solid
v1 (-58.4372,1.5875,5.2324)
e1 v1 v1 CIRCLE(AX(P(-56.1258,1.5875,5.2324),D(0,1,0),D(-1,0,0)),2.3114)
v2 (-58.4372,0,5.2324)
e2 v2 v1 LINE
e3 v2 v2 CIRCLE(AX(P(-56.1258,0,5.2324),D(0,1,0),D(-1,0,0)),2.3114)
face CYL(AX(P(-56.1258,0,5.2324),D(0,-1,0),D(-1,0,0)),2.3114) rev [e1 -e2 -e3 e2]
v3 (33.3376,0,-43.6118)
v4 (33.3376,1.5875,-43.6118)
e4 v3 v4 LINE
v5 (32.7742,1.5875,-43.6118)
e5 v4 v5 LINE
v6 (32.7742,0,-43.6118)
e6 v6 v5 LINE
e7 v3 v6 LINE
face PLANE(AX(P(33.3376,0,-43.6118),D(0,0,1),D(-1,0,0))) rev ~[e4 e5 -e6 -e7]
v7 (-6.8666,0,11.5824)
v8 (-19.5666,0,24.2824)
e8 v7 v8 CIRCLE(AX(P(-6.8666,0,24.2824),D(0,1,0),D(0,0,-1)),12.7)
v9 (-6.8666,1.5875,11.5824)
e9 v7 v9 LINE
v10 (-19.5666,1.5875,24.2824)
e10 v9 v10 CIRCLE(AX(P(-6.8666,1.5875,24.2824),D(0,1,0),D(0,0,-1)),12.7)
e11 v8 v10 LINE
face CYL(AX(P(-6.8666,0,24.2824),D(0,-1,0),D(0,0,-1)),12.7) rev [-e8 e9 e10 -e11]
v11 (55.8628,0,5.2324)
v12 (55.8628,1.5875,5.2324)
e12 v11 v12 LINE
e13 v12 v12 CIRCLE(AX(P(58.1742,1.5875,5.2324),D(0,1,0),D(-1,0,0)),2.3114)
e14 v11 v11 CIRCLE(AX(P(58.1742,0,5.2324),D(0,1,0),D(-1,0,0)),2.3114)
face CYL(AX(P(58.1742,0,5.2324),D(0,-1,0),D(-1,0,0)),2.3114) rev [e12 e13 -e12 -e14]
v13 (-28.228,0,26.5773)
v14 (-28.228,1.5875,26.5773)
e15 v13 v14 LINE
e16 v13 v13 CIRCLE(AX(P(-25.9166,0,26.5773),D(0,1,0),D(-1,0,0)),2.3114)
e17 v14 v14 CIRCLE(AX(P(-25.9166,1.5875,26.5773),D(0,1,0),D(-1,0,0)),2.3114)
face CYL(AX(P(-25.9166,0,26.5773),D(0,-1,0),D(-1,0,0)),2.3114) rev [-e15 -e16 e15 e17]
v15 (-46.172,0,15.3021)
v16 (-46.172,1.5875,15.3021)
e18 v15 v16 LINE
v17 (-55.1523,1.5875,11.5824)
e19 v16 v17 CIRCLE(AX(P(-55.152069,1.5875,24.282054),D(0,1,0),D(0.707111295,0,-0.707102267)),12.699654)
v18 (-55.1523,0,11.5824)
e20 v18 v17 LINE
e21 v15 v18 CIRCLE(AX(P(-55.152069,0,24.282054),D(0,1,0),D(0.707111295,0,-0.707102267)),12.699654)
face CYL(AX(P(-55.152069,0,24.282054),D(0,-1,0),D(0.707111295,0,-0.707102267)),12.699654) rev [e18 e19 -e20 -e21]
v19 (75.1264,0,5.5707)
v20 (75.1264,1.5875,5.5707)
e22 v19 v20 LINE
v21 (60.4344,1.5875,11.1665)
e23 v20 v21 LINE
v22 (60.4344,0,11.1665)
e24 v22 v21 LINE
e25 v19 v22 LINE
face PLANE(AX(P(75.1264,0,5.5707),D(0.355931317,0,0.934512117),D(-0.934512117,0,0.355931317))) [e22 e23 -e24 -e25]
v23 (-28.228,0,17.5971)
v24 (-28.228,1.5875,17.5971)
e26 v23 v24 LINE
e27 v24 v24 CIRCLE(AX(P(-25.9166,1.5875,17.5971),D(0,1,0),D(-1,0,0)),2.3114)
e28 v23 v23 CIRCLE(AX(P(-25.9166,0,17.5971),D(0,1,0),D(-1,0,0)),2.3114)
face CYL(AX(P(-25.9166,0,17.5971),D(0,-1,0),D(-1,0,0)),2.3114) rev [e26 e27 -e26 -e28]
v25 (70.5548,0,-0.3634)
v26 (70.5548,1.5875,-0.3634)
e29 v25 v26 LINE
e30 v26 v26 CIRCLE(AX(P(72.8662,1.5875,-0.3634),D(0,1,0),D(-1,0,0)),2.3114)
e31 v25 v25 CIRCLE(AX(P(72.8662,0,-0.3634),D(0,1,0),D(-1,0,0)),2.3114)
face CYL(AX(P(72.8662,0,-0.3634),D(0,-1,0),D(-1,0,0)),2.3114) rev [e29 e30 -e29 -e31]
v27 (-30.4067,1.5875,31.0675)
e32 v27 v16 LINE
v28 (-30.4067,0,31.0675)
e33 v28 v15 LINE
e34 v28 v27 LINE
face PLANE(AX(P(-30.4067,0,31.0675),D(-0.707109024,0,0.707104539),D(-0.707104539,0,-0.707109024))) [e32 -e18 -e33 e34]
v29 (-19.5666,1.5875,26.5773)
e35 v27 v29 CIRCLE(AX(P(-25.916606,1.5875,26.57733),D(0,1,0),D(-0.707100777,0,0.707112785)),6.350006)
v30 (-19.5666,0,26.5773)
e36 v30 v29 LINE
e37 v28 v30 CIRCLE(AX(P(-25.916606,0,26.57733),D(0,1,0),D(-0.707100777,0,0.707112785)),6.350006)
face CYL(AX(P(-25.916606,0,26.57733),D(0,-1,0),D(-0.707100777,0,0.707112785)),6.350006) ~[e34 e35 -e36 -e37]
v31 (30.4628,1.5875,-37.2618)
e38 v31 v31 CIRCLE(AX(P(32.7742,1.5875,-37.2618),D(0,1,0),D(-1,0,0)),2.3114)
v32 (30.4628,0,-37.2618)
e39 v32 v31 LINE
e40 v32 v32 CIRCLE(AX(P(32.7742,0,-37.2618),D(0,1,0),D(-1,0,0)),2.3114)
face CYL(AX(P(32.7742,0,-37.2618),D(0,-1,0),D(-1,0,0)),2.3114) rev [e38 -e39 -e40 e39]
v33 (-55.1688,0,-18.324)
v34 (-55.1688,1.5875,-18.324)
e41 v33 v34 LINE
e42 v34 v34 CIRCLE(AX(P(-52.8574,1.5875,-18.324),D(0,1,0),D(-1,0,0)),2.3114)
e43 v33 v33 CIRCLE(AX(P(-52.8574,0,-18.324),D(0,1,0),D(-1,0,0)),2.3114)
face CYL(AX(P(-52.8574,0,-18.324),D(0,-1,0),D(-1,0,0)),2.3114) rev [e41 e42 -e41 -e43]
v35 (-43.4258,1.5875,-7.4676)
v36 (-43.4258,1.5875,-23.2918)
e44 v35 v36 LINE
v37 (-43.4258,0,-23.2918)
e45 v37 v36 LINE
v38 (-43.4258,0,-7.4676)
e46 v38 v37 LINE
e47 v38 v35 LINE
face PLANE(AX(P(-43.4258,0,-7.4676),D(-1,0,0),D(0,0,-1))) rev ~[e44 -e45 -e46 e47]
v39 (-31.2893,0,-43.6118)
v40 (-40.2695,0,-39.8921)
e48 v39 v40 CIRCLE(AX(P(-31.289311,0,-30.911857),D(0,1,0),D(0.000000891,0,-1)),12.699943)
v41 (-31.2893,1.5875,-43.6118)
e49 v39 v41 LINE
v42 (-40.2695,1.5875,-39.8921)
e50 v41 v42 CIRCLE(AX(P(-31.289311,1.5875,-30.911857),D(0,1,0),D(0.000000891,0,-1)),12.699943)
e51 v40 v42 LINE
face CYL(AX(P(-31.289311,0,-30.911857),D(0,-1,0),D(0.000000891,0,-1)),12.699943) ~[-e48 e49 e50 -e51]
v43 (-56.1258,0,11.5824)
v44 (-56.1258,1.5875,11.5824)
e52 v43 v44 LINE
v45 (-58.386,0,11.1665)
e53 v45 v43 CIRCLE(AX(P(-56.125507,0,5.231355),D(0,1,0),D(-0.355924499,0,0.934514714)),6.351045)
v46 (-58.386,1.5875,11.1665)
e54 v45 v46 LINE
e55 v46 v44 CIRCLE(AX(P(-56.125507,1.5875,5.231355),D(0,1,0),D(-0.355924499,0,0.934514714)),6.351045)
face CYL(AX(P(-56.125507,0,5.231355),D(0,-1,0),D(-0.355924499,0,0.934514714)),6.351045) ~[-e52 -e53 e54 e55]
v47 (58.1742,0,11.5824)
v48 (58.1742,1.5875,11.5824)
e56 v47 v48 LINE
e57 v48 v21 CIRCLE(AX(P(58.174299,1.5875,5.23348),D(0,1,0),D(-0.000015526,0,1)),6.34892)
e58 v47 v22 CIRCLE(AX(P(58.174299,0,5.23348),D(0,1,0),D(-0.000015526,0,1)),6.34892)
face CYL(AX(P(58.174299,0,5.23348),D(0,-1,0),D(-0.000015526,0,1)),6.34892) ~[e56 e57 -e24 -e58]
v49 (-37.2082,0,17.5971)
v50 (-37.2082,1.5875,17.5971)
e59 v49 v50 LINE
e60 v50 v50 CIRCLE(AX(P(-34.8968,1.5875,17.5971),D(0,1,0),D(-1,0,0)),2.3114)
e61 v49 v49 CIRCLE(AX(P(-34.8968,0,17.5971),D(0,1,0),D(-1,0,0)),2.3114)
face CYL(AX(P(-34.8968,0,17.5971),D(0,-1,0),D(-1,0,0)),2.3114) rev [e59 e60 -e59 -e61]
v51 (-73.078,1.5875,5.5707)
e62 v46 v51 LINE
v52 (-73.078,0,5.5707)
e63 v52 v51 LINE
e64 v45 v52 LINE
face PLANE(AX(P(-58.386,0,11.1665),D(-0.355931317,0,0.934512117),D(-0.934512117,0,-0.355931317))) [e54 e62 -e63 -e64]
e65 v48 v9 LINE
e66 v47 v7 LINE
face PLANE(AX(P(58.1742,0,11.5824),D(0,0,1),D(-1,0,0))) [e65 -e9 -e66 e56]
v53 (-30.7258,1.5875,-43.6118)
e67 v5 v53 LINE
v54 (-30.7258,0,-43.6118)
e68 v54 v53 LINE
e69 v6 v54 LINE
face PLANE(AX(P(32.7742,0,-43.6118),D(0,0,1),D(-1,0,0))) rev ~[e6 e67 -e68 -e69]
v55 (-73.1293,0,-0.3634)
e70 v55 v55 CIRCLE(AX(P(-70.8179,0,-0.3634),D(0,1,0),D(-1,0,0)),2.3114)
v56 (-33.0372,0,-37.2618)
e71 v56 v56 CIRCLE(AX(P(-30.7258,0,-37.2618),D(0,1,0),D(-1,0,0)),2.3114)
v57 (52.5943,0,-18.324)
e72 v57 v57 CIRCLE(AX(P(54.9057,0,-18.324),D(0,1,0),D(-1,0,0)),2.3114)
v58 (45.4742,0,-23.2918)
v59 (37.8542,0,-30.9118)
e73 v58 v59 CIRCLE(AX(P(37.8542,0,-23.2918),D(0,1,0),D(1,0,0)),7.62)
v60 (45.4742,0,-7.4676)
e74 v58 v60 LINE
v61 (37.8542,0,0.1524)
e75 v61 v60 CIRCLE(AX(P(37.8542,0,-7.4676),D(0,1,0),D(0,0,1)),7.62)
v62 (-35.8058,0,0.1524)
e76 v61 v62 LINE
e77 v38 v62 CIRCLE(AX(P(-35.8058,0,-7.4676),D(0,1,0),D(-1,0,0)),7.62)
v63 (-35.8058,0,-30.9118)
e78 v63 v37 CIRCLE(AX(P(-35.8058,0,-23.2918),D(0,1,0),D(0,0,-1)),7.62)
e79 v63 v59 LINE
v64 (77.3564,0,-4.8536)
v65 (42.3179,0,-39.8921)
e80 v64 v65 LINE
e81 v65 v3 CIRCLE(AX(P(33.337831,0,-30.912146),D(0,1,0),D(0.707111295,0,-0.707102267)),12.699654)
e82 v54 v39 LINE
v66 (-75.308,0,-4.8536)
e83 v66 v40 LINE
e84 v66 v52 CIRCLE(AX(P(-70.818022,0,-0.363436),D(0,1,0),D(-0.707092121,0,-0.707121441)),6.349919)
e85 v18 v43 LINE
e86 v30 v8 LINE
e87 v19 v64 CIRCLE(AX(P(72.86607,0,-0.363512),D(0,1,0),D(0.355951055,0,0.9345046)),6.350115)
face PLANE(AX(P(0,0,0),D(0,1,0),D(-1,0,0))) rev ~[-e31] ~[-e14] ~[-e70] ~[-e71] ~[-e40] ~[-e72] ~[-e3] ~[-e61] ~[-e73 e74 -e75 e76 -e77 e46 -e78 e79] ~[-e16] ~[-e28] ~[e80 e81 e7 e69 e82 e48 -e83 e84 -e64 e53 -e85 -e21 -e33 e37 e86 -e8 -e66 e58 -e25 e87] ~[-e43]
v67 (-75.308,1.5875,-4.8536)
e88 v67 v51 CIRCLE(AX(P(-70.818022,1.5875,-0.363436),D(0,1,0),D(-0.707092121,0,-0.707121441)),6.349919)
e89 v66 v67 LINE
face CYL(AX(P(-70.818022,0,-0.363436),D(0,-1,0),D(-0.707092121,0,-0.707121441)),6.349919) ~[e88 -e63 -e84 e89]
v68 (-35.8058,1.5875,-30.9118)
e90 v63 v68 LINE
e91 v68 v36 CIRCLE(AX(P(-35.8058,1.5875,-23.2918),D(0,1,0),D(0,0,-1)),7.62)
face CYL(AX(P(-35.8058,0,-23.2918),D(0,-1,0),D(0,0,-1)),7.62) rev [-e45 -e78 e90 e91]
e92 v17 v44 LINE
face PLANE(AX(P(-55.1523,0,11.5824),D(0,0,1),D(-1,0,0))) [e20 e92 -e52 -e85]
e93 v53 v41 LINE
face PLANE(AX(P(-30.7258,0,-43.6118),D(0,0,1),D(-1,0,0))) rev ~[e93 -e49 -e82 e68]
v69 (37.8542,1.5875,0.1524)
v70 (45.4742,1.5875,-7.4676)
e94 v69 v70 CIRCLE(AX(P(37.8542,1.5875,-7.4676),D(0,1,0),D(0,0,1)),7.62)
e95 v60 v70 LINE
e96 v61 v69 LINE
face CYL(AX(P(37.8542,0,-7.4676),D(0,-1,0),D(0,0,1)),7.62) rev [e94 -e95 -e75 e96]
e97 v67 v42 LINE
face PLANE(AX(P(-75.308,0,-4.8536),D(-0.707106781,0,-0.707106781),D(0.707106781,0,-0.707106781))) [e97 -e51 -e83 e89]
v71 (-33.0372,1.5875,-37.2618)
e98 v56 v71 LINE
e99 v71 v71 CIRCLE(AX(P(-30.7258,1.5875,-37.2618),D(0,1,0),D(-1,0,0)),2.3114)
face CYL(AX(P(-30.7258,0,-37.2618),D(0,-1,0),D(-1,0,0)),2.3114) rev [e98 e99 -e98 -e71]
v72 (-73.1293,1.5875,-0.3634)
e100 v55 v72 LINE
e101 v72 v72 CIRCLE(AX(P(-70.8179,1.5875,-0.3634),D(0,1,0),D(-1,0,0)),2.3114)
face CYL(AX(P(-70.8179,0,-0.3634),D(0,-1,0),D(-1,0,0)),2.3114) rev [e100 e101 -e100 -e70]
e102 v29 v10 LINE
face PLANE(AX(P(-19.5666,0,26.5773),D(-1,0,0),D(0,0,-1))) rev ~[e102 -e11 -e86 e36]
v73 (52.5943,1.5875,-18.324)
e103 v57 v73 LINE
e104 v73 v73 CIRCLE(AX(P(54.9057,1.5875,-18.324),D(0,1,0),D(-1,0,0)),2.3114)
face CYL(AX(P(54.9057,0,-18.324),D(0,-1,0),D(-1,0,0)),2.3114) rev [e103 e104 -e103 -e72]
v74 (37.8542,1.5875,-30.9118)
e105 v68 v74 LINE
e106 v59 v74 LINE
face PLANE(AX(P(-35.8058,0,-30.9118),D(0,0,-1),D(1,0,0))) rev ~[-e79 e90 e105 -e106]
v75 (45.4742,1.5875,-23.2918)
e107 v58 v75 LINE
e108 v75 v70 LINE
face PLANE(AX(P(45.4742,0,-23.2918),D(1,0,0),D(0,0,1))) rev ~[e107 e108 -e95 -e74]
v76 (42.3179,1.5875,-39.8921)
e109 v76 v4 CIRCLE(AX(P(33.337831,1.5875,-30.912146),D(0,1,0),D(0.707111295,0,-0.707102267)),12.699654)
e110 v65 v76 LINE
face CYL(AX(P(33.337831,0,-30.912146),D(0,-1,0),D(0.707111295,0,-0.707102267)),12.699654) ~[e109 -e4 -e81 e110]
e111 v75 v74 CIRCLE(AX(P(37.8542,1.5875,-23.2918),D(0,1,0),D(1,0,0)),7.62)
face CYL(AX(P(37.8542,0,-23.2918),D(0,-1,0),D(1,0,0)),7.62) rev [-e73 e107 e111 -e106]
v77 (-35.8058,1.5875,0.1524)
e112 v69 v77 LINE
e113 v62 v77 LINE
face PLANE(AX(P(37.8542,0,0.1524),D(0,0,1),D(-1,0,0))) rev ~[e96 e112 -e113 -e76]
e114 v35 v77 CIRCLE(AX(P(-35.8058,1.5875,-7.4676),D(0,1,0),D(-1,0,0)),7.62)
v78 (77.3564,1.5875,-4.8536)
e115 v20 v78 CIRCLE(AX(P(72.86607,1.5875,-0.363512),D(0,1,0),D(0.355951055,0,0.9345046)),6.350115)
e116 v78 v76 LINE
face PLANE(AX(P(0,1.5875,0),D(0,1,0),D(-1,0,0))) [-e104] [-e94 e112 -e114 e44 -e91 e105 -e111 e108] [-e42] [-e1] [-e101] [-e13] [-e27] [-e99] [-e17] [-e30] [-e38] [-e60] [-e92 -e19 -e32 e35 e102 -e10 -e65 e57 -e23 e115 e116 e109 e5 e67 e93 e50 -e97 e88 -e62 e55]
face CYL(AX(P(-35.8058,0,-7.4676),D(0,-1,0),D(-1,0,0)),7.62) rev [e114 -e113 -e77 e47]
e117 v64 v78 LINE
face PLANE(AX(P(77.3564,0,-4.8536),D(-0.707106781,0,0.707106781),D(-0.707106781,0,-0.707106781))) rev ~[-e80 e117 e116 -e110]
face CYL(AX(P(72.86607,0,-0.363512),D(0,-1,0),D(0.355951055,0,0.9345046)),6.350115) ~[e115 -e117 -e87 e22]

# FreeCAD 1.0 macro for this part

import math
import FreeCAD as App
import Part
import Sketcher
Q = App.Units.Quantity

doc = App.newDocument("Part")
body = doc.addObject("PartDesign::Body", "Body")

sketch1 = body.newObject("Sketcher::SketchObject", "Sketch")
sketch1.AttachmentSupport = (doc.getObject("XZ_Plane"), [""])
sketch1.MapMode = "FlatFace"
sketch1.addGeometry([
    Part.LineSegment(App.Vector(-40.2695, -39.8921, 0), App.Vector(-75.308, -4.8536, 0)),
    Part.ArcOfCircle(Part.Circle(App.Vector(-70.8179, -0.3634, 0), App.Vector(0, 0, 1), 6.350031), math.radians(110.850162), math.radians(225.000638)),
    Part.LineSegment(App.Vector(-73.078, 5.5707, 0), App.Vector(-58.386, 11.1665, 0)),
    Part.ArcOfCircle(Part.Circle(App.Vector(-56.125507, 5.231355, 0), App.Vector(0, 0, 1), 6.351045), math.radians(90.002639), math.radians(110.850115)),
    Part.LineSegment(App.Vector(-56.1258, 11.5824, 0), App.Vector(-55.1523, 11.5824, 0)),
    Part.ArcOfCircle(Part.Circle(App.Vector(-55.1523, 24.2824, 0), App.Vector(0, 0, 1), 12.700062), math.radians(-90), math.radians(-45)),
    Part.LineSegment(App.Vector(-46.172, 15.3021, 0), App.Vector(-30.4067, 31.0675, 0)),
    Part.ArcOfCircle(Part.Circle(App.Vector(-25.9166, 26.5773, 0), App.Vector(0, 0, 1), 6.350031), math.radians(0), math.radians(134.999362)),
    Part.LineSegment(App.Vector(-19.5666, 26.5773, 0), App.Vector(-19.5666, 24.2824, 0)),
    Part.ArcOfCircle(Part.Circle(App.Vector(-6.8666, 24.2824, 0), App.Vector(0, 0, 1), 12.7), math.radians(180), math.radians(270)),
    Part.LineSegment(App.Vector(-6.8666, 11.5824, 0), App.Vector(58.1742, 11.5824, 0)),
    Part.ArcOfCircle(Part.Circle(App.Vector(58.174299, 5.23348, 0), App.Vector(0, 0, 1), 6.34892), math.radians(69.146356), math.radians(90.00089)),
    Part.LineSegment(App.Vector(60.4344, 11.1665, 0), App.Vector(75.1264, 5.5707, 0)),
    Part.ArcOfCircle(Part.Circle(App.Vector(72.8662, -0.3634, 0), App.Vector(0, 0, 1), 6.349964), math.radians(-45), math.radians(69.148995)),
    Part.LineSegment(App.Vector(77.3564, -4.8536, 0), App.Vector(42.3179, -39.8921, 0)),
    Part.ArcOfCircle(Part.Circle(App.Vector(33.3376, -30.9118, 0), App.Vector(0, 0, 1), 12.700062), math.radians(-90), math.radians(-45)),
    Part.LineSegment(App.Vector(33.3376, -43.6118, 0), App.Vector(-31.2893, -43.6118, 0)),
    Part.ArcOfCircle(Part.Circle(App.Vector(-31.2893, -30.9118, 0), App.Vector(0, 0, 1), 12.7), math.radians(-134.999681), math.radians(-90)),
    Part.Circle(App.Vector(32.7742, -37.2618, 0), App.Vector(0, 0, 1), 2.3114),
    Part.Circle(App.Vector(54.9057, -18.324, 0), App.Vector(0, 0, 1), 2.3114),
    Part.ArcOfCircle(Part.Circle(App.Vector(37.8542, -7.4676, 0), App.Vector(0, 0, 1), 7.62), math.radians(0), math.radians(90)),
    Part.LineSegment(App.Vector(37.8542, 0.1524, 0), App.Vector(-35.8058, 0.1524, 0)),
    Part.ArcOfCircle(Part.Circle(App.Vector(-35.8058, -7.4676, 0), App.Vector(0, 0, 1), 7.62), math.radians(90), math.radians(180)),
    Part.LineSegment(App.Vector(-43.4258, -7.4676, 0), App.Vector(-43.4258, -23.2918, 0)),
    Part.ArcOfCircle(Part.Circle(App.Vector(-35.8058, -23.2918, 0), App.Vector(0, 0, 1), 7.62), math.radians(180), math.radians(270)),
    Part.LineSegment(App.Vector(-35.8058, -30.9118, 0), App.Vector(37.8542, -30.9118, 0)),
    Part.ArcOfCircle(Part.Circle(App.Vector(37.8542, -23.2918, 0), App.Vector(0, 0, 1), 7.62), math.radians(-90), math.radians(0)),
    Part.LineSegment(App.Vector(45.4742, -23.2918, 0), App.Vector(45.4742, -7.4676, 0)),
    Part.Circle(App.Vector(-30.7258, -37.2618, 0), App.Vector(0, 0, 1), 2.3114),
    Part.Circle(App.Vector(-52.8574, -18.324, 0), App.Vector(0, 0, 1), 2.3114),
    Part.Circle(App.Vector(72.8662, -0.3634, 0), App.Vector(0, 0, 1), 2.3114),
    Part.Circle(App.Vector(58.1742, 5.2324, 0), App.Vector(0, 0, 1), 2.3114),
    Part.Circle(App.Vector(-70.8179, -0.3634, 0), App.Vector(0, 0, 1), 2.3114),
    Part.Circle(App.Vector(-56.1258, 5.2324, 0), App.Vector(0, 0, 1), 2.3114),
    Part.Circle(App.Vector(-25.9166, 17.5971, 0), App.Vector(0, 0, 1), 2.3114),
    Part.Circle(App.Vector(-34.8968, 17.5971, 0), App.Vector(0, 0, 1), 2.3114),
    Part.Circle(App.Vector(-25.9166, 26.5773, 0), App.Vector(0, 0, 1), 2.3114),
], False)
sketch1.addConstraint([
    Sketcher.Constraint("Coincident", 0, 2, 1, 2),
    Sketcher.Constraint("Coincident", 1, 1, 2, 1),
    Sketcher.Constraint("Coincident", 2, 2, 3, 2),
    Sketcher.Constraint("Coincident", 3, 1, 4, 1),
    Sketcher.Constraint("Coincident", 4, 2, 5, 1),
    Sketcher.Constraint("Coincident", 5, 2, 6, 1),
    Sketcher.Constraint("Coincident", 6, 2, 7, 2),
    Sketcher.Constraint("Coincident", 7, 1, 8, 1),
    Sketcher.Constraint("Coincident", 8, 2, 9, 1),
    Sketcher.Constraint("Coincident", 9, 2, 10, 1),
    Sketcher.Constraint("Coincident", 10, 2, 11, 2),
    Sketcher.Constraint("Coincident", 11, 1, 12, 1),
    Sketcher.Constraint("Coincident", 12, 2, 13, 2),
    Sketcher.Constraint("Coincident", 13, 1, 14, 1),
    Sketcher.Constraint("Coincident", 14, 2, 15, 2),
    Sketcher.Constraint("Coincident", 15, 1, 16, 1),
    Sketcher.Constraint("Coincident", 16, 2, 17, 2),
    Sketcher.Constraint("Coincident", 17, 1, 0, 1),
    Sketcher.Constraint("Coincident", 20, 2, 21, 1),
    Sketcher.Constraint("Coincident", 21, 2, 22, 1),
    Sketcher.Constraint("Coincident", 22, 2, 23, 1),
    Sketcher.Constraint("Coincident", 23, 2, 24, 1),
    Sketcher.Constraint("Coincident", 24, 2, 25, 1),
    Sketcher.Constraint("Coincident", 25, 2, 26, 1),
    Sketcher.Constraint("Coincident", 26, 2, 27, 1),
    Sketcher.Constraint("Coincident", 27, 2, 20, 1),
    Sketcher.Constraint("Horizontal", 4),
    Sketcher.Constraint("Vertical", 8),
    Sketcher.Constraint("Horizontal", 10),
    Sketcher.Constraint("Horizontal", 16),
    Sketcher.Constraint("Horizontal", 21),
    Sketcher.Constraint("Vertical", 23),
    Sketcher.Constraint("Horizontal", 25),
    Sketcher.Constraint("Vertical", 27),
    Sketcher.Constraint("Coincident", 30, 3, 13, 3),
    Sketcher.Constraint("Coincident", 32, 3, 1, 3),
    Sketcher.Constraint("Coincident", 36, 3, 7, 3),
    Sketcher.Constraint("Radius", 5, Q("0.5 in")),
    Sketcher.Constraint("Radius", 9, Q("0.5 in")),
    Sketcher.Constraint("Radius", 15, Q("0.5 in")),
    Sketcher.Constraint("Radius", 17, Q("0.5 in")),
    Sketcher.Constraint("Radius", 20, Q("0.3 in")),
    Sketcher.Constraint("Radius", 22, Q("0.3 in")),
    Sketcher.Constraint("Radius", 24, Q("0.3 in")),
    Sketcher.Constraint("Radius", 26, Q("0.3 in")),
    Sketcher.Constraint("Radius", 1, Q("0.25 in")),
    Sketcher.Constraint("Radius", 7, Q("0.25 in")),
    Sketcher.Constraint("Radius", 13, Q("0.25 in")),
    Sketcher.Constraint("DistanceY", 17, 3, 24, 3, Q("0.3 in")),
    Sketcher.Constraint("DistanceY", 20, 3, 31, 3, Q("0.5 in")),
    Sketcher.Constraint("DistanceX", 8, 2, 9, 2, Q("0.5 in")),
    Sketcher.Constraint("DistanceY", 9, 2, 8, 2, Q("0.5 in")),
    Sketcher.Constraint("DistanceX", 22, 2, 21, 2, Q("0.3 in")),
    Sketcher.Constraint("DistanceY", 22, 2, 21, 2, Q("0.3 in")),
    Sketcher.Constraint("DistanceX", 3, 3, 22, 2, Q("0.5 in")),
    Sketcher.Constraint("DistanceY", 17, 3, 23, 2, Q("0.3 in")),
    Sketcher.Constraint("DistanceX", 23, 2, 24, 2, Q("0.3 in")),
    Sketcher.Constraint("DistanceX", 25, 2, 26, 2, Q("0.3 in")),
    Sketcher.Constraint("DistanceY", 25, 2, 26, 2, Q("0.3 in")),
    Sketcher.Constraint("DistanceX", 20, 2, 27, 2, Q("0.3 in")),
    Sketcher.Constraint("DistanceY", 27, 2, 20, 2, Q("0.3 in")),
    Sketcher.Constraint("Diameter", 18, Q("0.182 in")),
    Sketcher.Constraint("Diameter", 19, Q("0.182 in")),
    Sketcher.Constraint("Diameter", 28, Q("0.182 in")),
    Sketcher.Constraint("Diameter", 29, Q("0.182 in")),
    Sketcher.Constraint("Diameter", 30, Q("0.182 in")),
    Sketcher.Constraint("Diameter", 31, Q("0.182 in")),
    Sketcher.Constraint("Diameter", 32, Q("0.182 in")),
    Sketcher.Constraint("Diameter", 33, Q("0.182 in")),
    Sketcher.Constraint("Diameter", 34, Q("0.182 in")),
    Sketcher.Constraint("Diameter", 35, Q("0.182 in")),
    Sketcher.Constraint("Diameter", 36, Q("0.182 in")),
    Sketcher.Constraint("DistanceX", 21, 2, 21, 1, Q("2.9 in")),
    Sketcher.Constraint("DistanceX", 18, 3, 11, 3, Q("1 in")),
    Sketcher.Constraint("DistanceX", 3, 3, 28, 3, Q("1 in")),
    Sketcher.Constraint("DistanceX", 33, 3, 3, 3, Q("0 in")),
    Sketcher.Constraint("DistanceX", 3, 1, 3, 3, Q("0 in")),
    Sketcher.Constraint("DistanceX", 3, 3, 11, 3, Q("4.5 in")),
    Sketcher.Constraint("DistanceX", 20, 3, 31, 3, Q("0.8 in")),
    Sketcher.Constraint("DistanceX", 20, 3, 10, 2, Q("0.8 in")),
    Sketcher.Constraint("DistanceY", 23, 2, 23, 1, Q("0.623 in")),
    Sketcher.Constraint("Radius", 3, Q("6.351 mm")),
    Sketcher.Constraint("Radius", 11, Q("6.349 mm")),
    Sketcher.Constraint("DistanceY", 18, 3, 15, 3, Q("0.25 in")),
    Sketcher.Constraint("DistanceY", 22, 3, 5, 3, Q("1.25 in")),
    Sketcher.Constraint("DistanceY", 28, 3, 17, 3, Q("0.25 in")),
    Sketcher.Constraint("DistanceY", 33, 3, 5, 3, Q("0.75 in")),
    Sketcher.Constraint("DistanceX", 34, 3, 9, 3, Q("0.75 in")),
    Sketcher.Constraint("DistanceY", 31, 3, 10, 2, Q("0.25 in")),
    Sketcher.Constraint("DistanceY", -1, 1, 5, 3, Q("0.956 in")),
    Sketcher.Constraint("DistanceX", -1, 1, 15, 3, Q("1.3125 in")),
    Sketcher.Constraint("DistanceX", 29, 3, -1, 1, Q("2.081 in")),
    Sketcher.Constraint("DistanceX", -1, 1, 15, 1, Q("1.3125 in")),
    Sketcher.Constraint("DistanceX", 5, 3, 7, 3, Q("1.151 in")),
    Sketcher.Constraint("DistanceX", 2, 2, 3, 3, Q("0.089 in")),
    Sketcher.Constraint("DistanceX", 4, 1, 4, 2, Q("0.9735 mm")),
    Sketcher.Constraint("DistanceX", 10, 1, 10, 2, Q("65.0408 mm")),
    Sketcher.Constraint("DistanceX", 16, 2, 16, 1, Q("64.627 mm")),
    Sketcher.Constraint("DistanceY", 8, 2, 8, 1, Q("2.295 mm")),
    Sketcher.Constraint("DistanceX", 1, 3, -1, 1, Q("2.7881 in")),
    Sketcher.Constraint("DistanceY", 1, 3, -1, 1, Q("0.0143 in")),
    Sketcher.Constraint("DistanceY", 13, 3, -1, 1, Q("0.0143 in")),
    Sketcher.Constraint("DistanceY", -1, 1, 34, 3, Q("0.6928 in")),
    Sketcher.Constraint("DistanceX", 35, 3, -1, 1, Q("1.3739 in")),
    Sketcher.Constraint("DistanceY", -1, 1, 35, 3, Q("0.6928 in")),
    Sketcher.Constraint("DistanceX", 1, 1, -1, 1, Q("2.8771 in")),
    Sketcher.Constraint("DistanceX", 5, 2, -1, 1, Q("1.8178 in")),
    Sketcher.Constraint("DistanceX", -1, 1, 11, 1, Q("2.3793 in")),
    Sketcher.Constraint("DistanceY", 3, 3, 7, 3, Q("0.8404 in")),
    Sketcher.Constraint("DistanceX", 5, 3, 13, 3, Q("5.0401 in")),
    Sketcher.Constraint("DistanceX", 3, 3, 17, 3, Q("0.9778 in")),
    Sketcher.Constraint("DistanceX", 19, 3, 13, 3, Q("0.7071 in")),
    Sketcher.Constraint("DistanceY", 19, 3, 13, 3, Q("0.7071 in")),
    Sketcher.Constraint("DistanceY", 29, 3, 1, 3, Q("0.7071 in")),
    Sketcher.Constraint("DistanceX", 0, 2, 33, 3, Q("0.7552 in")),
    Sketcher.Constraint("DistanceX", 0, 2, 1, 1, Q("0.0878 in")),
    Sketcher.Constraint("DistanceY", 12, 2, 11, 1, Q("0.2203 in")),
    Sketcher.Constraint("DistanceX", 12, 2, 13, 1, Q("0.0878 in")),
    Sketcher.Constraint("Distance", 0, Q("49.552 mm")),
    Sketcher.Constraint("Distance", 6, Q("22.2956 mm")),
    Sketcher.Constraint("Distance", 14, Q("49.552 mm")),
])
pad1 = body.newObject("PartDesign::Pad", "Pad")
pad1.Profile = sketch1
pad1.Length = Q("0.0625 in")
pad1.Reversed = True

doc.recompute()
